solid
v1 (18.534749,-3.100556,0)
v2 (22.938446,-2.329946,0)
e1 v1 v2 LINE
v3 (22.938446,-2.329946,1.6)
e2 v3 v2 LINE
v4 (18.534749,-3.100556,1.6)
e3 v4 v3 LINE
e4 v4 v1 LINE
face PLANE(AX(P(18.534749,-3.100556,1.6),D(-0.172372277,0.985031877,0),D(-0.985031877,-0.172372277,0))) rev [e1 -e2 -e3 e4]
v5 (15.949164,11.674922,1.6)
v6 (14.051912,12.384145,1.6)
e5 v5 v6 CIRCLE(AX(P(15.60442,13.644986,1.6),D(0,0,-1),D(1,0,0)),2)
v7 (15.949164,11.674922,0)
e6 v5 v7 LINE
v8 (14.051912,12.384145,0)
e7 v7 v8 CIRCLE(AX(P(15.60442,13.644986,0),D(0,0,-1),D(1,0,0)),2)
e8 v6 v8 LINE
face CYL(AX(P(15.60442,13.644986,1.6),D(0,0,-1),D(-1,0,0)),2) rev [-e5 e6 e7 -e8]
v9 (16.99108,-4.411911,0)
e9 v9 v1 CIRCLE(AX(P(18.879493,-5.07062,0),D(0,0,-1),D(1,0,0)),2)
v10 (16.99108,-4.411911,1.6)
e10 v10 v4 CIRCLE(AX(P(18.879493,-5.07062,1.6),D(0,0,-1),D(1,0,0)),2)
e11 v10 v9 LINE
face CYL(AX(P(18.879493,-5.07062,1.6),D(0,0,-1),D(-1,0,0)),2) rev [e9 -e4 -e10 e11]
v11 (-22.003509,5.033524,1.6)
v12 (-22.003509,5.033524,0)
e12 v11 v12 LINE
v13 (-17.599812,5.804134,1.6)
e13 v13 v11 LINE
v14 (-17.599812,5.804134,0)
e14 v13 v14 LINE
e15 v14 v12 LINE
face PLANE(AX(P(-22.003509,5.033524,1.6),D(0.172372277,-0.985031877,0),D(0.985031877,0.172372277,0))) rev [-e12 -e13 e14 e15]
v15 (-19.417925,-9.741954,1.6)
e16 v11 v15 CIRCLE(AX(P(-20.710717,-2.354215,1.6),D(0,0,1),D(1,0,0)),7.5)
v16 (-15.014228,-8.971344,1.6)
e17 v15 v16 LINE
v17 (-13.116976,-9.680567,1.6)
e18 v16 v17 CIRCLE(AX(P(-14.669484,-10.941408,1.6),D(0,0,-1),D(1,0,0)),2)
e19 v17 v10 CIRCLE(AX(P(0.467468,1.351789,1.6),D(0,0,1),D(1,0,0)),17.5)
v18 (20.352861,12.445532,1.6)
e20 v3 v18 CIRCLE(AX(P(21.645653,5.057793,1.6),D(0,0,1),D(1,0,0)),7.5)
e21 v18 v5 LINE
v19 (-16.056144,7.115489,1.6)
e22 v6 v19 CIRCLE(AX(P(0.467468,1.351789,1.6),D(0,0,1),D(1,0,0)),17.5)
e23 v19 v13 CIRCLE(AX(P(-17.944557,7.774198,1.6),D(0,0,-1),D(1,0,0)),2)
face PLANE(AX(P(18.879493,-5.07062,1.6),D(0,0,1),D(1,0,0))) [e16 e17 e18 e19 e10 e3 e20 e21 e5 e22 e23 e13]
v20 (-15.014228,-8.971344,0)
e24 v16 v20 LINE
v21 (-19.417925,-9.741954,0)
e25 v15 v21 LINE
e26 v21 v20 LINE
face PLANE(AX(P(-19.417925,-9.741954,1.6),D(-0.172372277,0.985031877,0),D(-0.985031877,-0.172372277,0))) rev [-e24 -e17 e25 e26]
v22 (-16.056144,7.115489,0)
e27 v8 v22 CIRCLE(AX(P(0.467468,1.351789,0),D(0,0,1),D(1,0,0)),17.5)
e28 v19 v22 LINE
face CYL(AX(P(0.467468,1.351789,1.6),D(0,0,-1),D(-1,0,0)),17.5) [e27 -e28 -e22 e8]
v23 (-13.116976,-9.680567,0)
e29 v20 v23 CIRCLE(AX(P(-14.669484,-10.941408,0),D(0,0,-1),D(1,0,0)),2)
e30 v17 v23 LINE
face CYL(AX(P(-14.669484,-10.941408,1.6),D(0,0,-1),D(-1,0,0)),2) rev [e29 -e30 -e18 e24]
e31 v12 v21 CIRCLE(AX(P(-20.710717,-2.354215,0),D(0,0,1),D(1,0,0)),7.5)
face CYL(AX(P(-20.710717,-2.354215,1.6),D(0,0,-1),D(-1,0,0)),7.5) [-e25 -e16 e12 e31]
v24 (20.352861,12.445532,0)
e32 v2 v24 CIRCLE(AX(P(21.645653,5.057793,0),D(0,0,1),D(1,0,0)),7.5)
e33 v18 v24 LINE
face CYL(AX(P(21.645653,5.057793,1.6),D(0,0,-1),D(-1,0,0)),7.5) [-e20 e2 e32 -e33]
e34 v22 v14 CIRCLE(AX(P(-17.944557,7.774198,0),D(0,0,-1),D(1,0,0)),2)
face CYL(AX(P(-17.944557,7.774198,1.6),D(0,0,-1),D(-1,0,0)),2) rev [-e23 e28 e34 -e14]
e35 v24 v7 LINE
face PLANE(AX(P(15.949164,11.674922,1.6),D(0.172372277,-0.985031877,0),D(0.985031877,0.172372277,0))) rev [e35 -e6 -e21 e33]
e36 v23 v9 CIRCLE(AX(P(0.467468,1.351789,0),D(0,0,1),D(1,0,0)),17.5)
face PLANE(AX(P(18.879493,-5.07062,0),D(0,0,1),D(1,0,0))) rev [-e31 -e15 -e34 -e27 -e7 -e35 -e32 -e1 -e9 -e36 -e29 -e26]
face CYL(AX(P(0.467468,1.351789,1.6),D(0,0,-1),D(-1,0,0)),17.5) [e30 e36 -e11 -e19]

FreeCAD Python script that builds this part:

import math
import FreeCAD as App
import Part
import Sketcher

V = App.Vector

doc = App.newDocument("Part")
body = doc.addObject("PartDesign::Body", "Body")

# Sketch on XY plane
sketch1 = body.newObject("Sketcher::SketchObject", "Sketch")
sketch1.AttachmentSupport = (doc.getObject("XY_Plane"), [""])
sketch1.MapMode = "FlatFace"
sketch1.addGeometry(Part.LineSegment(V(-17.599812, 5.804134, 0), V(-22.003509, 5.033524, 0)), False)
sketch1.addGeometry(Part.ArcOfCircle(Part.Circle(V(-20.710717, -2.354215, 0), V(0, 0, 1), 7.5), math.radians(99.925777), math.radians(279.925777)), False)
sketch1.addGeometry(Part.LineSegment(V(-19.417925, -9.741954, 0), V(-15.014228, -8.971344, 0)), False)
sketch1.addGeometry(Part.ArcOfCircle(Part.Circle(V(-14.669484, -10.941408, 0), V(0, 0, 1), 2), math.radians(39.081142), math.radians(99.925777)), False)
sketch1.addGeometry(Part.ArcOfCircle(Part.Circle(V(0.467468, 1.351789, 0), V(0, 0, 1), 17.5), math.radians(-140.918858), math.radians(-19.229588)), False)
sketch1.addGeometry(Part.ArcOfCircle(Part.Circle(V(18.879493, -5.07062, 0), V(0, 0, 1), 2), math.radians(99.925777), math.radians(160.770411)), False)
sketch1.addGeometry(Part.LineSegment(V(18.534749, -3.100556, 0), V(22.938446, -2.329946, 0)), False)
sketch1.addGeometry(Part.ArcOfCircle(Part.Circle(V(21.645653, 5.057793, 0), V(0, 0, 1), 7.5), math.radians(-80.074223), math.radians(99.925777)), False)
sketch1.addGeometry(Part.LineSegment(V(20.352861, 12.445532, 0), V(15.949164, 11.674922, 0)), False)
sketch1.addGeometry(Part.ArcOfCircle(Part.Circle(V(15.60442, 13.644986, 0), V(0, 0, 1), 2), math.radians(-140.918858), math.radians(-80.074223)), False)
sketch1.addGeometry(Part.ArcOfCircle(Part.Circle(V(0.467468, 1.351789, 0), V(0, 0, 1), 17.5), math.radians(39.081142), math.radians(160.770412)), False)
sketch1.addGeometry(Part.ArcOfCircle(Part.Circle(V(-17.944557, 7.774198, 0), V(0, 0, 1), 2), math.radians(-80.074223), math.radians(-19.229588)), False)
sketch1.addConstraint(Sketcher.Constraint("Tangent", 0, 2, 1, 1))
sketch1.addConstraint(Sketcher.Constraint("Tangent", 1, 2, 2, 1))
sketch1.addConstraint(Sketcher.Constraint("Tangent", 2, 2, 3, 2))
sketch1.addConstraint(Sketcher.Constraint("Tangent", 3, 1, 4, 1))
sketch1.addConstraint(Sketcher.Constraint("Tangent", 4, 2, 5, 2))
sketch1.addConstraint(Sketcher.Constraint("Tangent", 5, 1, 6, 1))
sketch1.addConstraint(Sketcher.Constraint("Tangent", 6, 2, 7, 1))
sketch1.addConstraint(Sketcher.Constraint("Tangent", 7, 2, 8, 1))
sketch1.addConstraint(Sketcher.Constraint("Tangent", 8, 2, 9, 2))
sketch1.addConstraint(Sketcher.Constraint("Tangent", 9, 1, 10, 1))
sketch1.addConstraint(Sketcher.Constraint("Tangent", 10, 2, 11, 2))
sketch1.addConstraint(Sketcher.Constraint("Tangent", 11, 1, 0, 1))
sketch1.addConstraint(Sketcher.Constraint("Coincident", 10, 3, 4, 3))
sketch1.addConstraint(Sketcher.Constraint("Equal", 3, 5))
sketch1.addConstraint(Sketcher.Constraint("Equal", 1, 7))
sketch1.addConstraint(Sketcher.Constraint("Equal", 5, 9))
sketch1.addConstraint(Sketcher.Constraint("Equal", 4, 10))
sketch1.addConstraint(Sketcher.Constraint("Equal", 9, 11))
sketch1.addConstraint(Sketcher.Constraint("Parallel", 0, 2))
sketch1.addConstraint(Sketcher.Constraint("Parallel", 2, 6))
sketch1.addConstraint(Sketcher.Constraint("Parallel", 6, 8))
sketch1.addConstraint(Sketcher.Constraint("Equal", 0, 2))
sketch1.addConstraint(Sketcher.Constraint("Equal", 2, 6))
sketch1.addConstraint(Sketcher.Constraint("Equal", 6, 8))
sketch1.addConstraint(Sketcher.Constraint("Radius", 3, 2.0))
sketch1.addConstraint(Sketcher.Constraint("Radius", 1, 7.5))
sketch1.addConstraint(Sketcher.Constraint("Radius", 4, 17.5))
sketch1.addConstraint(Sketcher.Constraint("DistanceY", 3, 3, 7, 3, 15.999201))
sketch1.addConstraint(Sketcher.Constraint("DistanceY", 5, 1, 9, 1, 15.484701))
sketch1.addConstraint(Sketcher.Constraint("DistanceY", 3, 3, -1, 1, 10.941408))
sketch1.addConstraint(Sketcher.Constraint("DistanceX", -1, 1, 4, 3, 0.467468))
pad1 = body.newObject("PartDesign::Pad", "Pad")
pad1.Profile = sketch1
pad1.Length = 1.6

doc.recompute()
